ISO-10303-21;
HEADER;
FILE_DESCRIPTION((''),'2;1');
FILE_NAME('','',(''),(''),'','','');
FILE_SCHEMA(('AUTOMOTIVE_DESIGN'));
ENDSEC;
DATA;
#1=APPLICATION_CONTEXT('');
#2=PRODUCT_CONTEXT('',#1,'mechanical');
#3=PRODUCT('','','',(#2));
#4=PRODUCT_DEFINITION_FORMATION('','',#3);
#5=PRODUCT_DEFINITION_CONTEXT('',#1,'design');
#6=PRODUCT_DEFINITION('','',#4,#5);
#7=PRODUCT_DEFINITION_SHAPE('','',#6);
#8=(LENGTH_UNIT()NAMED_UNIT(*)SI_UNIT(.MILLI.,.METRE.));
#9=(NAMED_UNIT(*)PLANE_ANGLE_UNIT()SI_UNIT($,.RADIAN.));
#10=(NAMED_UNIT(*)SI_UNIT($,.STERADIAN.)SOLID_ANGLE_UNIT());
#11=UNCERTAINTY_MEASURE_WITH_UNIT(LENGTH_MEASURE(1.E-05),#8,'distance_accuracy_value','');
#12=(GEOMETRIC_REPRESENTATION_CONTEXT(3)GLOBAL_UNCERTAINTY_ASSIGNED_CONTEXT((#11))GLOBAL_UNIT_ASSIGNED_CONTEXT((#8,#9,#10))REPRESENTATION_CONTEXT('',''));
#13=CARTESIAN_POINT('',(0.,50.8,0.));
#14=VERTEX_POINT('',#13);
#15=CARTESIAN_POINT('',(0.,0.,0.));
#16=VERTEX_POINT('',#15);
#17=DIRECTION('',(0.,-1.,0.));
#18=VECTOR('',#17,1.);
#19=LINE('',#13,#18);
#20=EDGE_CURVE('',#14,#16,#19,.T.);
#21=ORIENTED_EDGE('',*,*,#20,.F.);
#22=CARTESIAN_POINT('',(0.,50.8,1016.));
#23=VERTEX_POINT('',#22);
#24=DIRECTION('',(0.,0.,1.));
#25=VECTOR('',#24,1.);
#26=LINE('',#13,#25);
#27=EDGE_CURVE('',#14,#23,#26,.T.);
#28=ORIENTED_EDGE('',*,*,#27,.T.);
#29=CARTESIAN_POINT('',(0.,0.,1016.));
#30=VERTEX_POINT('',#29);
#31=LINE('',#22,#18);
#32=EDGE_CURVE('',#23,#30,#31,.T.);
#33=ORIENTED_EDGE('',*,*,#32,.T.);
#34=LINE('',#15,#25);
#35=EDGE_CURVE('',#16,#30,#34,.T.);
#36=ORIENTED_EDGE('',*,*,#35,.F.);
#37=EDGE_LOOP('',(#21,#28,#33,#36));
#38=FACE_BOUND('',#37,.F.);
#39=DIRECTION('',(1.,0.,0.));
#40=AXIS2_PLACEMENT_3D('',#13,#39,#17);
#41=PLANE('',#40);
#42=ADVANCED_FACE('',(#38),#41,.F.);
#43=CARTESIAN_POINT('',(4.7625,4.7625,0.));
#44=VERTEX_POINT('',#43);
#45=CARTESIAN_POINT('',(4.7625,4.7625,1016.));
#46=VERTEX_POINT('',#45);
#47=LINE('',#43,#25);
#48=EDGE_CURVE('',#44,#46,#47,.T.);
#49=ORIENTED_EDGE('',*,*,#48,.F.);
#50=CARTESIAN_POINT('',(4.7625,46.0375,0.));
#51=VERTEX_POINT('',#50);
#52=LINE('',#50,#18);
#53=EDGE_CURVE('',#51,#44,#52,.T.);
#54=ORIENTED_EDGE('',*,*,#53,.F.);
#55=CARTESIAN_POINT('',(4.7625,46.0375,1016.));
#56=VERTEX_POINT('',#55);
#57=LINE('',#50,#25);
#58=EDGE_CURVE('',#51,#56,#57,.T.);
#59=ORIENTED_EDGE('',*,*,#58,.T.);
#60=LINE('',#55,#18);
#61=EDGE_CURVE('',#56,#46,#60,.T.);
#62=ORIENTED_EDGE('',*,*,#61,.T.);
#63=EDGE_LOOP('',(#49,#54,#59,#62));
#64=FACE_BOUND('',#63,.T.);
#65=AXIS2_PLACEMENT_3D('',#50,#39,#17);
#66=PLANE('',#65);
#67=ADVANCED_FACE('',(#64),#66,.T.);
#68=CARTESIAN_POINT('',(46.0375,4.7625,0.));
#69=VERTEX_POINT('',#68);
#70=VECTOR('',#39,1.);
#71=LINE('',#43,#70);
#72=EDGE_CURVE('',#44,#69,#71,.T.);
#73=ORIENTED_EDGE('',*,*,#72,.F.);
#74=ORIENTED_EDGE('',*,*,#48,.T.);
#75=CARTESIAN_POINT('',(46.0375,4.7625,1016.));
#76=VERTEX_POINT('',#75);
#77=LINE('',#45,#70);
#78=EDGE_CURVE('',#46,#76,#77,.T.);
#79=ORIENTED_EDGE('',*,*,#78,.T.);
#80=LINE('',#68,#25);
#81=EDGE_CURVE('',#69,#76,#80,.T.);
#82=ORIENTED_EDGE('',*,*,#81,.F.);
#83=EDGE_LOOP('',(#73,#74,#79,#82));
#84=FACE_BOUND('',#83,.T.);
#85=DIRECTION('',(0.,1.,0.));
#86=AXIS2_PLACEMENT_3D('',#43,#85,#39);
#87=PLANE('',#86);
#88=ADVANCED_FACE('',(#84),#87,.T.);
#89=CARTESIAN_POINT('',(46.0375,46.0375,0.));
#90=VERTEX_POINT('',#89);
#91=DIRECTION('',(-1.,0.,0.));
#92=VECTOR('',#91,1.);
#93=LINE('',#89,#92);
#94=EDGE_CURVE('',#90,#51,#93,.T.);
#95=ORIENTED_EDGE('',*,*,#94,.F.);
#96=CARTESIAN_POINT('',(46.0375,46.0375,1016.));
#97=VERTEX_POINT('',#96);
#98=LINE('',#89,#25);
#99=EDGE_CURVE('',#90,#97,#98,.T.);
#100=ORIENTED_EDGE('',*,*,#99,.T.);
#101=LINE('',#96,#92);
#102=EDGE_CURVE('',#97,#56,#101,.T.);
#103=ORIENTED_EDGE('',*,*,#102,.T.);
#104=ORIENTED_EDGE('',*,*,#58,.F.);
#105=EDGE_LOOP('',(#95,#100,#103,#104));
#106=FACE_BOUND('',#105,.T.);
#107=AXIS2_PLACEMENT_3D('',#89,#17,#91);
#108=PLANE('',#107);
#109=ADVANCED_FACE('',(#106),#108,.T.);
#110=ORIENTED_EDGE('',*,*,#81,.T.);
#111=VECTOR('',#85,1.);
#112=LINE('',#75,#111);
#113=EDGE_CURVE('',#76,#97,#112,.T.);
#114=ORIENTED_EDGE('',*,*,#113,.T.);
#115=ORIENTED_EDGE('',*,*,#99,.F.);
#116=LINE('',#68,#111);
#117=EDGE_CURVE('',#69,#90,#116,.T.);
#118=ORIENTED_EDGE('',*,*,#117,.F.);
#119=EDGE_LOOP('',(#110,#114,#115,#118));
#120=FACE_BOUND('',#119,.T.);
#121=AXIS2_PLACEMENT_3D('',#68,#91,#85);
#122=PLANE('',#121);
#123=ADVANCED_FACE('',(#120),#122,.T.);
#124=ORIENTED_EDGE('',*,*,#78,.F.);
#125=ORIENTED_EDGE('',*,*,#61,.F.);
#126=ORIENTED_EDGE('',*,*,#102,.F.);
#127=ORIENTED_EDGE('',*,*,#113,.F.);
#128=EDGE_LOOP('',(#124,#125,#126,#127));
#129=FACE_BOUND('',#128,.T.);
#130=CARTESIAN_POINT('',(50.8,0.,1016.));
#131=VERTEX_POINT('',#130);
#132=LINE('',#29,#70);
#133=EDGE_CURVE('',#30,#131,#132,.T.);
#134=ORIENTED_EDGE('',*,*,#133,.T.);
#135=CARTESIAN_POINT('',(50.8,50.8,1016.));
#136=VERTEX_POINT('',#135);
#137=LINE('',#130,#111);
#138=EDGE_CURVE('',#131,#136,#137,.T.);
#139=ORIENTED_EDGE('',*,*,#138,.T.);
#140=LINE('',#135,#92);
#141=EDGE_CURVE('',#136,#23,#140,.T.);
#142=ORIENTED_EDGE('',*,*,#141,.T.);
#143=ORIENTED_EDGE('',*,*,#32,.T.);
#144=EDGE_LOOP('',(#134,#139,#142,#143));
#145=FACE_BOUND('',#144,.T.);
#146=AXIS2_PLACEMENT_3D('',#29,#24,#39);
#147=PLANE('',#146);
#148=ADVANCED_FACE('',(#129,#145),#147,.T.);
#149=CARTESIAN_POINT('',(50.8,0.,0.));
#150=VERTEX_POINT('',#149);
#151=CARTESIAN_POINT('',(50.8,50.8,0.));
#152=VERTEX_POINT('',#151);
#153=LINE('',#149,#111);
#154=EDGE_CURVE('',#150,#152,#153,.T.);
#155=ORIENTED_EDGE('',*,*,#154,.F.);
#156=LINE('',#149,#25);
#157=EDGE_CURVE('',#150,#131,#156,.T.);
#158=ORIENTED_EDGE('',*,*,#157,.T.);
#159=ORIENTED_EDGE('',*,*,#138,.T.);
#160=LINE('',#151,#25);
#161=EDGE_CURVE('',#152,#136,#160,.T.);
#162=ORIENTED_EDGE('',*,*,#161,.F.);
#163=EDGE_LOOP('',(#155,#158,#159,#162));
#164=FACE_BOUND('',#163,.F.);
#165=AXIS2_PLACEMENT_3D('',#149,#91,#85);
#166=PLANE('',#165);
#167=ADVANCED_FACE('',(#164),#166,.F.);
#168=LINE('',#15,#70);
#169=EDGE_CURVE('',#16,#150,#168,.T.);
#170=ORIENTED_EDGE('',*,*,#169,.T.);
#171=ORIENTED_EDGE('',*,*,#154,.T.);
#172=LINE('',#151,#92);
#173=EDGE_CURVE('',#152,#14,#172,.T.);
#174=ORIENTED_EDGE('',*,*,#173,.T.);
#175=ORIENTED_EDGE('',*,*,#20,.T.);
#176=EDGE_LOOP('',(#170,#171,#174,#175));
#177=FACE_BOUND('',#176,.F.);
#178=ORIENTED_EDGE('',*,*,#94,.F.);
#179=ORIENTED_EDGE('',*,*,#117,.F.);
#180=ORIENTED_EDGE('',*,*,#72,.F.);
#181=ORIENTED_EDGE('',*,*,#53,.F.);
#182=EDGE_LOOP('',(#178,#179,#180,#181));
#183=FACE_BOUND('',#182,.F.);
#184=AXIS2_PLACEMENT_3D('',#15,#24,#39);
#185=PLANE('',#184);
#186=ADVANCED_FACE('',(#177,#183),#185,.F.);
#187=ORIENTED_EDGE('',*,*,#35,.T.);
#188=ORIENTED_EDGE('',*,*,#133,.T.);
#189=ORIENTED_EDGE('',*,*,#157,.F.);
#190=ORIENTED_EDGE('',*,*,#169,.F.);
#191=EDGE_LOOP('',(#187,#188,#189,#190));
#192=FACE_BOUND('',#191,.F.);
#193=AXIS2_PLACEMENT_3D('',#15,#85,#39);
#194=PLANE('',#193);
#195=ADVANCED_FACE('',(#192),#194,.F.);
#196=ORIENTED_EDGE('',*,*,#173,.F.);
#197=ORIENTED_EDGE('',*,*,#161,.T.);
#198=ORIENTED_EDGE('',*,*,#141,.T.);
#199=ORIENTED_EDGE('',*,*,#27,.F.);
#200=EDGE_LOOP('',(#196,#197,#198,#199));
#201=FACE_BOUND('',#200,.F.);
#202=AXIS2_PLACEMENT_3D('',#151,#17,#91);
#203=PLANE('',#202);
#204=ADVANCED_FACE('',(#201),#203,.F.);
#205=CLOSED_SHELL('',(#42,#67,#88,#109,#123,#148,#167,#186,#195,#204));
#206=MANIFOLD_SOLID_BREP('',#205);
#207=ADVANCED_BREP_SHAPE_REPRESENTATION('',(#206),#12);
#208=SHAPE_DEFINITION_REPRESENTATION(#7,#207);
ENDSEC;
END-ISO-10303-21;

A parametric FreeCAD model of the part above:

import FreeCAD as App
import Part
import Sketcher
from FreeCAD import Vector
Q = App.Units.Quantity


def add_polygon(sketch, points):
    """Adds a closed chain of lines whose ends are joined by coincident constraints."""
    first, n = sketch.GeometryCount, len(points)
    for a, b in zip(points, points[1:] + points[:1]):
        sketch.addGeometry(Part.LineSegment(App.Vector(*a, 0), App.Vector(*b, 0)), False)
    for i in range(n):
        sketch.addConstraint(Sketcher.Constraint("Coincident", first + i, 2, first + (i + 1) % n, 1))

doc = App.newDocument("Part")
body = doc.addObject("PartDesign::Body", "Body")

sketch1 = body.newObject("Sketcher::SketchObject", "Sketch")
sketch1.AttachmentSupport = (doc.getObject("XY_Plane"), [""])
sketch1.MapMode = "FlatFace"
add_polygon(sketch1, [(0, 51), (0, 0), (51, 0), (51, 51)])
add_polygon(sketch1, [(5, 46), (46, 46), (46, 5), (5, 5)])
sketch1.addConstraint([
    Sketcher.Constraint("Vertical", 0),
    Sketcher.Constraint("Horizontal", 1),
    Sketcher.Constraint("Vertical", 2),
    Sketcher.Constraint("Horizontal", 3),
    Sketcher.Constraint("Horizontal", 4),
    Sketcher.Constraint("Vertical", 5),
    Sketcher.Constraint("Horizontal", 6),
    Sketcher.Constraint("Vertical", 7),
    Sketcher.Constraint("Coincident", 0, 2, -1, 1),
    Sketcher.Constraint("Equal", 3, 0),
    Sketcher.Constraint("Equal", 6, 5),
    Sketcher.Constraint("DistanceX", 1, 1, 1, 2, Q("2 in")),
    Sketcher.Constraint("DistanceY", -1, 1, 5, 2, Q("0.1875 in")),
    Sketcher.Constraint("DistanceX", -1, 1, 6, 2, Q("0.1875 in")),
    Sketcher.Constraint("DistanceX", 4, 2, 2, 2, Q("0.1875 in")),
])
pad1 = body.newObject("PartDesign::Pad", "Pad")
pad1.Profile = sketch1
pad1.Length = Q("40 in")

doc.recompute()
